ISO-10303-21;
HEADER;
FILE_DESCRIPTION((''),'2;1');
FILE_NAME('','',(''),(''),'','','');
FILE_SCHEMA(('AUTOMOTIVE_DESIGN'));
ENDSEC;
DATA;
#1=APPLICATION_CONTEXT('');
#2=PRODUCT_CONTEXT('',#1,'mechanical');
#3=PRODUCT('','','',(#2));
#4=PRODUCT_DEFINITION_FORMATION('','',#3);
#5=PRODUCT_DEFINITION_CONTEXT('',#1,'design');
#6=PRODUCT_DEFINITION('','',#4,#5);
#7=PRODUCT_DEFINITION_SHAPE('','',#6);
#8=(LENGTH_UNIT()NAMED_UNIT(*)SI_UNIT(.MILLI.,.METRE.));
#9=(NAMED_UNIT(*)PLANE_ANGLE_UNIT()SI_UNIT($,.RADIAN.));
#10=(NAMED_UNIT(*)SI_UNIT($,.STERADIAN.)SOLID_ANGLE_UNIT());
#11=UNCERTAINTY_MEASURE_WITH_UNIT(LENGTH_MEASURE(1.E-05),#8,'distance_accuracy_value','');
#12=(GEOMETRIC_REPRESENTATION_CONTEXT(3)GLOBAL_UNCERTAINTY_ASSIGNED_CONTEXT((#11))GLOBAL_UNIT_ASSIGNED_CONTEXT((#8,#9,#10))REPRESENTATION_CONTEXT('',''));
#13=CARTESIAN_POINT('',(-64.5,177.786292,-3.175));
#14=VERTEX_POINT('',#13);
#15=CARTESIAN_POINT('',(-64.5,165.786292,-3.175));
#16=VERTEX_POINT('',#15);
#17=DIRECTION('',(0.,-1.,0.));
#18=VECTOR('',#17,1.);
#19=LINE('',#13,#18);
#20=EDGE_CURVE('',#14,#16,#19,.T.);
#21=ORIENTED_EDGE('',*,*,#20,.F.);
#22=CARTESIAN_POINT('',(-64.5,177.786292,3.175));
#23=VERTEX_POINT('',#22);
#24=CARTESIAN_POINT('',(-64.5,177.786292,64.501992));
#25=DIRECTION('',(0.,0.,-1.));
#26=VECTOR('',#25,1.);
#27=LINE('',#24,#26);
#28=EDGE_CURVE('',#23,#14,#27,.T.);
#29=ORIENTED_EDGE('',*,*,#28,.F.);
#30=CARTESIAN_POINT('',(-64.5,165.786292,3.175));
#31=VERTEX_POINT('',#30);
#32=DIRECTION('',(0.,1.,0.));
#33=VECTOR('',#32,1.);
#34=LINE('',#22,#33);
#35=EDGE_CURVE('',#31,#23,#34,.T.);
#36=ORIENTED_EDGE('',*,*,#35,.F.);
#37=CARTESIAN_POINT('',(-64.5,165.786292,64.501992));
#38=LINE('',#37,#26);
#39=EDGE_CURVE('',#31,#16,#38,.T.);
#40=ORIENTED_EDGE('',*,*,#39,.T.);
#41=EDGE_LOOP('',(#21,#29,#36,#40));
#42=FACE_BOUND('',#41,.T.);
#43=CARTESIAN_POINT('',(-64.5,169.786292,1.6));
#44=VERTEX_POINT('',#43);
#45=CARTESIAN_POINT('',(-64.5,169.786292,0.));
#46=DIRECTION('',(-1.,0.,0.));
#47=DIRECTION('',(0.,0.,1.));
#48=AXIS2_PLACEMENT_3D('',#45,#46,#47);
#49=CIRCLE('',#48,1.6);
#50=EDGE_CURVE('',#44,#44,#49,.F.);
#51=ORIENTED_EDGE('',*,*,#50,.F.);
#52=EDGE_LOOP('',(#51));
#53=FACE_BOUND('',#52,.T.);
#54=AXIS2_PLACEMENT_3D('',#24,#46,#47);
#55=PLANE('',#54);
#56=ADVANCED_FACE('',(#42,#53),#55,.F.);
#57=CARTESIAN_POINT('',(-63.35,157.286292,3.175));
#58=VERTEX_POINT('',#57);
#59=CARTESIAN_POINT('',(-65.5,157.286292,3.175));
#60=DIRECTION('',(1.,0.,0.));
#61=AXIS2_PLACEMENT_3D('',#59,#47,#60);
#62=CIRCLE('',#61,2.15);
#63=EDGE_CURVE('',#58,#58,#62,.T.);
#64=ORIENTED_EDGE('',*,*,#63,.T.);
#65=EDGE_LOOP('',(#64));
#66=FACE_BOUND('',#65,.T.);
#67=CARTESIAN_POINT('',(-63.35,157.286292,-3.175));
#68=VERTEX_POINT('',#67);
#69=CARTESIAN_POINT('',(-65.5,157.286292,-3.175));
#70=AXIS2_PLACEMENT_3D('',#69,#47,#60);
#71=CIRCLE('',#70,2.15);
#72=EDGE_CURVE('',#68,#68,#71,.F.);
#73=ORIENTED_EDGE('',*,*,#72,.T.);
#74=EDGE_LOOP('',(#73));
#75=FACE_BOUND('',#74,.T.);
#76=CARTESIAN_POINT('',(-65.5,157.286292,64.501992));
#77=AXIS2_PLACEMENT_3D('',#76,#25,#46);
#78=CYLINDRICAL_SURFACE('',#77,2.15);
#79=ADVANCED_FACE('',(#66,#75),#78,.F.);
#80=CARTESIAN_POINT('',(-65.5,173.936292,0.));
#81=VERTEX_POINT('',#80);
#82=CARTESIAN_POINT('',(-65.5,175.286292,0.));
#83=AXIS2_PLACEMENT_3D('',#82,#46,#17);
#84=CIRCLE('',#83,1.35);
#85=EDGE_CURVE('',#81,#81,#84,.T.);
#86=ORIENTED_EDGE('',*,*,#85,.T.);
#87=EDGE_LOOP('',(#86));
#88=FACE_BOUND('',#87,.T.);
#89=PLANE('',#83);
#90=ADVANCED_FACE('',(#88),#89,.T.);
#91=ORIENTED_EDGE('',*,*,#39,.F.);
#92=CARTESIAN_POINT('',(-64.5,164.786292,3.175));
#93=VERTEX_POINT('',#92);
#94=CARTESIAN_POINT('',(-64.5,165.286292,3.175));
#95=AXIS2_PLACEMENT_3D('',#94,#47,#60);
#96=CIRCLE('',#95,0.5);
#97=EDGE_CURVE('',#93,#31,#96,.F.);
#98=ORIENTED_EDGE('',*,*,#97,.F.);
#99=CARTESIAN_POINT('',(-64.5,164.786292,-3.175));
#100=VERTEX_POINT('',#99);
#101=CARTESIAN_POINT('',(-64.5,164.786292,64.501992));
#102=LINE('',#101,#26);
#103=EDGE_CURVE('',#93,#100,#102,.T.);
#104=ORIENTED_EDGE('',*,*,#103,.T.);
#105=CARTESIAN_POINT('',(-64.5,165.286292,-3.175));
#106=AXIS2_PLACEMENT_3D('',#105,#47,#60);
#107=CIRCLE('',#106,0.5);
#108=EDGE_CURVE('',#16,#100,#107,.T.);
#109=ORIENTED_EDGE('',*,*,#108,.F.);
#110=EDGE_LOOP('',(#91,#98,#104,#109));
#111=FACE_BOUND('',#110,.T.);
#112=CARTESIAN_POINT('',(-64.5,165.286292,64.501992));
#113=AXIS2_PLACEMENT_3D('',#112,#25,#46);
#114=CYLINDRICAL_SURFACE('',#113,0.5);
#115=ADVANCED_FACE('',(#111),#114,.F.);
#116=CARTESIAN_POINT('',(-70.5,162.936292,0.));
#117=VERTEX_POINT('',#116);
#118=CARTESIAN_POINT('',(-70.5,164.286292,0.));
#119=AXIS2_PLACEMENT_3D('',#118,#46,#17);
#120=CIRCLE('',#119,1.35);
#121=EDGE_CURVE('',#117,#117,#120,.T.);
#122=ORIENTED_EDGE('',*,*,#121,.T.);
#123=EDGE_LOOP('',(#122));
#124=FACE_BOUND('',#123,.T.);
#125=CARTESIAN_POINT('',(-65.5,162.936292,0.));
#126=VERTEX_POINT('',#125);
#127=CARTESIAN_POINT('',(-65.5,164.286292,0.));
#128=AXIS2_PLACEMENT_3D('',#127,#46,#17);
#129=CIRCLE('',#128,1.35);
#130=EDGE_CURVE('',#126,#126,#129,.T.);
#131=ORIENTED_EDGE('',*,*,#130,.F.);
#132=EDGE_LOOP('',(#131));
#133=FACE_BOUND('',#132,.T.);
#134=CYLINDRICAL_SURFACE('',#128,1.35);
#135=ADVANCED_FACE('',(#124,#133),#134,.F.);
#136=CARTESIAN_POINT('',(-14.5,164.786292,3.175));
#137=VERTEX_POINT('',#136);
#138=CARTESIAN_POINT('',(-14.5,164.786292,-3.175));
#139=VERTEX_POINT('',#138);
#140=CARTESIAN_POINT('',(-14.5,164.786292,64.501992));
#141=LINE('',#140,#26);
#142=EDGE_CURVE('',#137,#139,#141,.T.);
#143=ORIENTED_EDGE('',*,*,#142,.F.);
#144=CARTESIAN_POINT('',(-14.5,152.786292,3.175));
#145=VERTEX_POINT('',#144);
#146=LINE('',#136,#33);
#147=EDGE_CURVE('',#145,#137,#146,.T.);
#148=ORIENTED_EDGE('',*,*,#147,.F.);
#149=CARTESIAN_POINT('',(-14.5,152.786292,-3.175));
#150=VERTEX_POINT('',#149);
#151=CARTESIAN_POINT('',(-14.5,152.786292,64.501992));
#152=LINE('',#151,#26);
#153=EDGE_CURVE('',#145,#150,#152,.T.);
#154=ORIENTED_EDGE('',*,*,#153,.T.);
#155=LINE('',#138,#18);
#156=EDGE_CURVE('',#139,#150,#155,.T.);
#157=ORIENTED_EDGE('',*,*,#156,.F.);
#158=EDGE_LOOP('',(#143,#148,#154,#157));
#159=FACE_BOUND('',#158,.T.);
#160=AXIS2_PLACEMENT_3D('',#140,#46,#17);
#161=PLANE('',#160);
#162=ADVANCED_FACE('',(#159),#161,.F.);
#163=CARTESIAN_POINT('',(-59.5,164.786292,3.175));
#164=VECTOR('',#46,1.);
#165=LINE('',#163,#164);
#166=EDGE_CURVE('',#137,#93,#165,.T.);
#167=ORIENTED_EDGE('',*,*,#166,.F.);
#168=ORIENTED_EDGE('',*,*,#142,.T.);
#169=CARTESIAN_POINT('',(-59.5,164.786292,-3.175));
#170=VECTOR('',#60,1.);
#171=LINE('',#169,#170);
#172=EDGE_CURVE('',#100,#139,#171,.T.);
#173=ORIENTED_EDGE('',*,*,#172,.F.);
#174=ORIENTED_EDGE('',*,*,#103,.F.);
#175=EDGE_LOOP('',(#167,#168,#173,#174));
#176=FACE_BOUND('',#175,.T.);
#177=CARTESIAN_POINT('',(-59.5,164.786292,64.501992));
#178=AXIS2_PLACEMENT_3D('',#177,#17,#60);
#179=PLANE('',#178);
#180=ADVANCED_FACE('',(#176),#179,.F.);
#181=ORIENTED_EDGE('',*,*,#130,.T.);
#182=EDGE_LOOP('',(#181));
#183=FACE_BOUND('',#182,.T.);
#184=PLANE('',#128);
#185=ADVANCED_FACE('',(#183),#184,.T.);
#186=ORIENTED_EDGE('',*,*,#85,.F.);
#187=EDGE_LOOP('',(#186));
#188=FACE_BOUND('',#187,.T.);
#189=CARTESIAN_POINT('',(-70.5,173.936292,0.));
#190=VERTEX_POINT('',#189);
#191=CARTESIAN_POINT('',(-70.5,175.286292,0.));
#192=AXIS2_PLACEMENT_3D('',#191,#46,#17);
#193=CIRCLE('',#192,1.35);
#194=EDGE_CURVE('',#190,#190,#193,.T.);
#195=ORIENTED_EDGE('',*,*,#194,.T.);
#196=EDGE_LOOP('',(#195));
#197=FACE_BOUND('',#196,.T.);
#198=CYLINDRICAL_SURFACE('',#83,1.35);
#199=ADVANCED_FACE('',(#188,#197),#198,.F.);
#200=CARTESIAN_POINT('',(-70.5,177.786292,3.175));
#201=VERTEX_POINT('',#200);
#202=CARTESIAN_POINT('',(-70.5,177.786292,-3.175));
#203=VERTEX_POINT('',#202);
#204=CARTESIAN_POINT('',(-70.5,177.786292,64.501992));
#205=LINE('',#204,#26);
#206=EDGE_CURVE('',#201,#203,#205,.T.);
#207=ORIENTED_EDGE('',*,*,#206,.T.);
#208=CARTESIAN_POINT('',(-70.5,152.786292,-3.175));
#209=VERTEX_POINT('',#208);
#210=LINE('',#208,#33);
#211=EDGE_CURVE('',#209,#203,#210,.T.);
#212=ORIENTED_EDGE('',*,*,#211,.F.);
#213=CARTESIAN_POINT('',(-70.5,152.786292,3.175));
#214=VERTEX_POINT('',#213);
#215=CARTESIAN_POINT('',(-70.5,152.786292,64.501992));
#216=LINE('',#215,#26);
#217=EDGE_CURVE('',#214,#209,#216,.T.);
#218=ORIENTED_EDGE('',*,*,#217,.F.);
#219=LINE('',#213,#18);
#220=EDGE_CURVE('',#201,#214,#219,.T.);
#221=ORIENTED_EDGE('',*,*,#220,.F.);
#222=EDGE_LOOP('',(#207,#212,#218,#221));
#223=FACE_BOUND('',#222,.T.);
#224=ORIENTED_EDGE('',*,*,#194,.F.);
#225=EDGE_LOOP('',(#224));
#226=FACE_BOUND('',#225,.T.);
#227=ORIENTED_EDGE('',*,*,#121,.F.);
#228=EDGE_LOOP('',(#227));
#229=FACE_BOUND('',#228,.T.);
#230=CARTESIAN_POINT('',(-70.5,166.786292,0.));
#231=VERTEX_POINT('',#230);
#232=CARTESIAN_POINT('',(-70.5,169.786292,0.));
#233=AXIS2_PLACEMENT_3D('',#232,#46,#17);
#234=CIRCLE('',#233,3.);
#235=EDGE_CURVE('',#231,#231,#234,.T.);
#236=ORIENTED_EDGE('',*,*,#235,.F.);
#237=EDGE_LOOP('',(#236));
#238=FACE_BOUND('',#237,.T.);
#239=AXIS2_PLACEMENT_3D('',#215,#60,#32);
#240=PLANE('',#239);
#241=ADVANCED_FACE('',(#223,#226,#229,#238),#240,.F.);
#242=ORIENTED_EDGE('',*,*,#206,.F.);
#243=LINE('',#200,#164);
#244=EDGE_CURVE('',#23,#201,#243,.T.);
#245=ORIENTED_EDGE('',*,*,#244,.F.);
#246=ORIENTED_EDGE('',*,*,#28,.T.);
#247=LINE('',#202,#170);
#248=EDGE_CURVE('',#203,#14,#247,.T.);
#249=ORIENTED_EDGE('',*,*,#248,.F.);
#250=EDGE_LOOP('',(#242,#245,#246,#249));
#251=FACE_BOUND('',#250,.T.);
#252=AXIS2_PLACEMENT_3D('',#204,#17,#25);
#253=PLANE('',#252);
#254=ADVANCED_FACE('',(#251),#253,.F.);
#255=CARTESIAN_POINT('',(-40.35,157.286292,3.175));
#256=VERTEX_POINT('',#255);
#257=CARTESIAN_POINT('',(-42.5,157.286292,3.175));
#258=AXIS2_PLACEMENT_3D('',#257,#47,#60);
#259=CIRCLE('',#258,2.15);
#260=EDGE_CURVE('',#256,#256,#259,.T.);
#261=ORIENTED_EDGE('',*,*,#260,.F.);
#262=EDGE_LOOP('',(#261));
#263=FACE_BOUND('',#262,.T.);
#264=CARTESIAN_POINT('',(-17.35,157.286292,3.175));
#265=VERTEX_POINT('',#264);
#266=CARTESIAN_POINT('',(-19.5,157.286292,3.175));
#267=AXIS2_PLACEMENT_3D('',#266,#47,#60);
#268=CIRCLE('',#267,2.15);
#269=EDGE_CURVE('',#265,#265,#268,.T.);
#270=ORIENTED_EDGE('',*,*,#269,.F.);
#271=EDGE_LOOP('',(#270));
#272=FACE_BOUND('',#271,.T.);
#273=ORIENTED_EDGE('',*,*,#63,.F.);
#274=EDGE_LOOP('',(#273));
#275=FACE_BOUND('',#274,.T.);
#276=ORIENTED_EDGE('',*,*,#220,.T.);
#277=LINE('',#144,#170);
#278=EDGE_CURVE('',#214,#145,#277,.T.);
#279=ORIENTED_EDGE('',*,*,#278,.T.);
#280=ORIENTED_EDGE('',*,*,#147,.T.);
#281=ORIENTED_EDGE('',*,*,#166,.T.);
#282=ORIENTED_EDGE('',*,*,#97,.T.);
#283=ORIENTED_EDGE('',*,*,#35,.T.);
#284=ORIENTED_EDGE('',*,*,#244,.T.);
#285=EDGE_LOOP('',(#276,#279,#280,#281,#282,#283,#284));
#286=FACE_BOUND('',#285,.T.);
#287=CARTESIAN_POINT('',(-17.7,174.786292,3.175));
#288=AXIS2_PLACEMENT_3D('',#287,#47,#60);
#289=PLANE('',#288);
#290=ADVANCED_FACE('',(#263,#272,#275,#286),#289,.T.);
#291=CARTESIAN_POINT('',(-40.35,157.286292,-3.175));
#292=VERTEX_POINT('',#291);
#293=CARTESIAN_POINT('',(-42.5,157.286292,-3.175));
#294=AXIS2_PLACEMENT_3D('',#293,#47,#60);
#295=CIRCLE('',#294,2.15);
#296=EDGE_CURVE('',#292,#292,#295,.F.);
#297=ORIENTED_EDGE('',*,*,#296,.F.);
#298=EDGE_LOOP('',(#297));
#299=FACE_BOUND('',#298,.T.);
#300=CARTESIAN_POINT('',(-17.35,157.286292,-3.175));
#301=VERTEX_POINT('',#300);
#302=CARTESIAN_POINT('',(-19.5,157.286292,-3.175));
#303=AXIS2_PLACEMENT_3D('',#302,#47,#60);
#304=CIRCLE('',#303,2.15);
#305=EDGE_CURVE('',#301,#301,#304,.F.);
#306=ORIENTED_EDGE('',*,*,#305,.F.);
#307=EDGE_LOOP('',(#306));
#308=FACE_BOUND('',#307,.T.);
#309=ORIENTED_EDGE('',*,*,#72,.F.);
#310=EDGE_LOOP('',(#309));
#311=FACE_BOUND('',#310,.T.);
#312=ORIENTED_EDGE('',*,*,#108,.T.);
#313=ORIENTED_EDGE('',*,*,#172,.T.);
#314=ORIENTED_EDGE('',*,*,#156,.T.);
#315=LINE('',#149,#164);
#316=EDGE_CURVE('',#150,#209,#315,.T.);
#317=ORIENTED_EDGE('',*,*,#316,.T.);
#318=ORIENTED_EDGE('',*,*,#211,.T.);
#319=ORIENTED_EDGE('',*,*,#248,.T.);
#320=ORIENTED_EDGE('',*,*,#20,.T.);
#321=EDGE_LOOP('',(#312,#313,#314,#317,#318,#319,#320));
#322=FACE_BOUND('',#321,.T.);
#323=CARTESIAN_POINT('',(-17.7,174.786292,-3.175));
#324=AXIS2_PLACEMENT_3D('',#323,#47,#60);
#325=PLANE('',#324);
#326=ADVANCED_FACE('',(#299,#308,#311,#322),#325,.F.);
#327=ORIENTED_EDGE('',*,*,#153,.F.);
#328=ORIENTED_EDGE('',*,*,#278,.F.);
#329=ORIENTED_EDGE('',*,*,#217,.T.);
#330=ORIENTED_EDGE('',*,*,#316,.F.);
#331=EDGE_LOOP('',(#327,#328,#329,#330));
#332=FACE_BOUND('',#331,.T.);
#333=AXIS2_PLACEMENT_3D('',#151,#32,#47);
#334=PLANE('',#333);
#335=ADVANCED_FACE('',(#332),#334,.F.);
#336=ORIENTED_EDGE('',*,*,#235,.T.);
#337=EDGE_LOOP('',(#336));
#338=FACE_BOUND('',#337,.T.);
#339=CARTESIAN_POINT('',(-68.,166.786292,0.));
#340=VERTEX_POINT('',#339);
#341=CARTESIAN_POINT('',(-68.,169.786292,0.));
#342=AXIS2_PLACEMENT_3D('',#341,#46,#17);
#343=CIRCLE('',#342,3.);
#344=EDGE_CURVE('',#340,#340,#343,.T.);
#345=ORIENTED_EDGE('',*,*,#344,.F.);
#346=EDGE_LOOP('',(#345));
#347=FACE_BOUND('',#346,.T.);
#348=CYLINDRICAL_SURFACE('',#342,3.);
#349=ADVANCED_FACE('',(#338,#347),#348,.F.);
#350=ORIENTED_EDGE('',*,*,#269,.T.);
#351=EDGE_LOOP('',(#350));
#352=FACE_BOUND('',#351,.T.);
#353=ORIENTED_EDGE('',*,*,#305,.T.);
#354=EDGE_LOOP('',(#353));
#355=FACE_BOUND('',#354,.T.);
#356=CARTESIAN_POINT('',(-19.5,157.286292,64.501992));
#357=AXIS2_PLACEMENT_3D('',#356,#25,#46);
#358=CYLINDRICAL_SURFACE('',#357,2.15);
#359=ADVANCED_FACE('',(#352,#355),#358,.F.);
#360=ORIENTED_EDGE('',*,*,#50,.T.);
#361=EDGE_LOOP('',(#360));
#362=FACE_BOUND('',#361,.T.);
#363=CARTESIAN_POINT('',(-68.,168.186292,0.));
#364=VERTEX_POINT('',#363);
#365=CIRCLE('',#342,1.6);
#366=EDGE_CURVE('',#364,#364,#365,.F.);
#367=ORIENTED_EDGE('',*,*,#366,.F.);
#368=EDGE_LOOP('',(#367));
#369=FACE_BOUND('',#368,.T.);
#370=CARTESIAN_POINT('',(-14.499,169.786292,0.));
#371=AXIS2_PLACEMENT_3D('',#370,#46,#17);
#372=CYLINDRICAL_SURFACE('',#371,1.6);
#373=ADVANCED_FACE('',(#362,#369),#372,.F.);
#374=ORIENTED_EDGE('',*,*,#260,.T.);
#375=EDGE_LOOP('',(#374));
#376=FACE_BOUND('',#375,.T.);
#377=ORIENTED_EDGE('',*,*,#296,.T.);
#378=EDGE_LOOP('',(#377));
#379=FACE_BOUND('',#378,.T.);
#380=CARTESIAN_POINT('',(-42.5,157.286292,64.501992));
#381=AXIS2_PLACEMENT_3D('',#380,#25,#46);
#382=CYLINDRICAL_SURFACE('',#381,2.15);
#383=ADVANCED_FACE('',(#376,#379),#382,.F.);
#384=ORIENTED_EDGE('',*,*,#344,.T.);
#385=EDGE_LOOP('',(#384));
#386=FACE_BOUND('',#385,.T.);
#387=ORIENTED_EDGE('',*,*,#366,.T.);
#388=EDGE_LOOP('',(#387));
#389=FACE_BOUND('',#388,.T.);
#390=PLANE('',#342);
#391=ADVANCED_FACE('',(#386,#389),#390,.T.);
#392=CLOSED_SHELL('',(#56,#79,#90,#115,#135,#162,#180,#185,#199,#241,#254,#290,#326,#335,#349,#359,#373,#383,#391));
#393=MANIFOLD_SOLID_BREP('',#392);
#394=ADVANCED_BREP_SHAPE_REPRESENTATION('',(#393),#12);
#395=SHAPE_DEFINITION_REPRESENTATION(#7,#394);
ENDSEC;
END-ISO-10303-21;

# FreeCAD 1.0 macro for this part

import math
import FreeCAD as App
import Part
import Sketcher

doc = App.newDocument("Part")
body = doc.addObject("PartDesign::Body", "Body")

sketch1 = doc.addObject("Sketcher::SketchObject", "Sketch")
body.addObject(sketch1)
sketch1.AttachmentSupport = (doc.XY_Plane, [""])
sketch1.MapMode = "FlatFace"
sketch1.addGeometry([
    Part.LineSegment(App.Vector(-64.5, 177.786292, 0), App.Vector(-70.5, 177.786292, 0)),
    Part.LineSegment(App.Vector(-70.5, 177.786292, 0), App.Vector(-70.5, 152.786292, 0)),
    Part.LineSegment(App.Vector(-70.5, 152.786292, 0), App.Vector(-14.5, 152.786292, 0)),
    Part.LineSegment(App.Vector(-14.5, 152.786292, 0), App.Vector(-14.5, 164.786292, 0)),
    Part.LineSegment(App.Vector(-14.5, 164.786292, 0), App.Vector(-64.5, 164.786292, 0)),
    Part.ArcOfCircle(Part.Circle(App.Vector(-64.5, 165.286292, 0), App.Vector(0, 0, 1), 0.5), math.radians(90), math.radians(270)),
    Part.LineSegment(App.Vector(-64.5, 165.786292, 0), App.Vector(-64.5, 177.786292, 0)),
    Part.Circle(App.Vector(-19.5, 157.286292, 0), App.Vector(0, 0, 1), 2.15),
    Part.Circle(App.Vector(-42.5, 157.286292, 0), App.Vector(0, 0, 1), 2.15),
    Part.Circle(App.Vector(-65.5, 157.286292, 0), App.Vector(0, 0, 1), 2.15),
], False)
sketch1.addConstraint([
    Sketcher.Constraint("Coincident", 0, 2, 1, 1),
    Sketcher.Constraint("Coincident", 1, 2, 2, 1),
    Sketcher.Constraint("Coincident", 2, 2, 3, 1),
    Sketcher.Constraint("Coincident", 3, 2, 4, 1),
    Sketcher.Constraint("Tangent", 4, 2, 5, 2),
    Sketcher.Constraint("Coincident", 5, 1, 6, 1),
    Sketcher.Constraint("Coincident", 6, 2, 0, 1),
    Sketcher.Constraint("Horizontal", 0),
    Sketcher.Constraint("Vertical", 1),
    Sketcher.Constraint("Horizontal", 2),
    Sketcher.Constraint("Vertical", 3),
    Sketcher.Constraint("Horizontal", 4),
    Sketcher.Constraint("Vertical", 6),
    Sketcher.Constraint("Equal", 7, 8),
    Sketcher.Constraint("Equal", 8, 9),
    Sketcher.Constraint("Horizontal", 7, 3, 8, 3),
    Sketcher.Constraint("Horizontal", 8, 3, 9, 3),
    Sketcher.Constraint("Vertical", 4, 2, 5, 1),
    Sketcher.Constraint("Equal", 3, 6),
    Sketcher.Constraint("Diameter", 7, 4.3),
    Sketcher.Constraint("Radius", 5, 0.5),
    Sketcher.Constraint("DistanceX", 0, 2, 0, 1, 6.0),
    Sketcher.Constraint("DistanceX", 2, 1, 2, 2, 56.0),
    Sketcher.Constraint("DistanceY", 1, 2, 1, 1, 25.0),
    Sketcher.Constraint("DistanceX", 5, 3, 7, 3, 45.0),
    Sketcher.Constraint("DistanceY", 7, 3, 5, 3, 8.0),
    Sketcher.Constraint("DistanceX", 8, 3, 7, 3, 23.0),
    Sketcher.Constraint("DistanceX", 9, 3, 5, 3, 1.0),
    Sketcher.Constraint("DistanceX", 5, 3, -1, 1, 64.5),
    Sketcher.Constraint("DistanceY", -1, 1, 5, 3, 165.286292),
])
pad1 = doc.addObject("PartDesign::Pad", "Pad")
body.addObject(pad1)
pad1.Profile = sketch1
pad1.Type = "TwoLengths"
pad1.Length = 3.175
pad1.Length2 = 3.175

sketch2 = doc.addObject("Sketcher::SketchObject", "Sketch001")
body.addObject(sketch2)
sketch2.AttachmentSupport = (doc.YZ_Plane, [""])
sketch2.MapMode = "FlatFace"
sketch2.AttachmentOffset = App.Placement(App.Vector(0, 0, -70.5), App.Rotation())
sketch2.addGeometry(Part.Circle(App.Vector(169.786292, 0, 0), App.Vector(0, 0, 1), 1.6), False)
sketch2.addConstraint([
    Sketcher.Constraint("PointOnObject", 0, 3, -1),
    Sketcher.Constraint("Diameter", 0, 3.2),
    Sketcher.Constraint("DistanceX", -1, 1, 0, 3, 169.786292),
])
pocket1 = doc.addObject("PartDesign::Pocket", "Pocket")
body.addObject(pocket1)
pocket1.Profile = sketch2
pocket1.Type = "UpToFirst"
pocket1.Reversed = True

sketch3 = doc.addObject("Sketcher::SketchObject", "Sketch002")
body.addObject(sketch3)
sketch3.AttachmentSupport = (doc.YZ_Plane, [""])
sketch3.MapMode = "FlatFace"
sketch3.AttachmentOffset = App.Placement(App.Vector(0, 0, -70.5), App.Rotation())
sketch3.addGeometry(Part.Circle(App.Vector(169.786292, 0, 0), App.Vector(0, 0, 1), 3), False)
sketch3.addConstraint([
    Sketcher.Constraint("PointOnObject", 0, 3, -1),
    Sketcher.Constraint("Diameter", 0, 6.0),
    Sketcher.Constraint("DistanceX", -1, 1, 0, 3, 169.786292),
])
pocket2 = doc.addObject("PartDesign::Pocket", "Pocket001")
body.addObject(pocket2)
pocket2.Profile = sketch3
pocket2.Length = 2.5
pocket2.Reversed = True

sketch4 = doc.addObject("Sketcher::SketchObject", "Sketch003")
body.addObject(sketch4)
sketch4.AttachmentSupport = (doc.YZ_Plane, [""])
sketch4.MapMode = "FlatFace"
sketch4.AttachmentOffset = App.Placement(App.Vector(0, 0, -70.5), App.Rotation())
sketch4.addGeometry([
    Part.Circle(App.Vector(175.286292, 0, 0), App.Vector(0, 0, 1), 1.35),
    Part.Circle(App.Vector(164.286292, 0, 0), App.Vector(0, 0, 1), 1.35),
], False)
sketch4.addConstraint([
    Sketcher.Constraint("Equal", 0, 1),
    Sketcher.Constraint("PointOnObject", 0, 3, -1),
    Sketcher.Constraint("PointOnObject", 1, 3, -1),
    Sketcher.Constraint("Diameter", 0, 2.7),
    Sketcher.Constraint("DistanceX", 1, 3, 0, 3, 11.0),
    Sketcher.Constraint("DistanceX", -1, 1, 0, 3, 175.286292),
])
pocket3 = doc.addObject("PartDesign::Pocket", "Pocket002")
body.addObject(pocket3)
pocket3.Profile = sketch4
pocket3.Length = 5
pocket3.Reversed = True

doc.recompute()
